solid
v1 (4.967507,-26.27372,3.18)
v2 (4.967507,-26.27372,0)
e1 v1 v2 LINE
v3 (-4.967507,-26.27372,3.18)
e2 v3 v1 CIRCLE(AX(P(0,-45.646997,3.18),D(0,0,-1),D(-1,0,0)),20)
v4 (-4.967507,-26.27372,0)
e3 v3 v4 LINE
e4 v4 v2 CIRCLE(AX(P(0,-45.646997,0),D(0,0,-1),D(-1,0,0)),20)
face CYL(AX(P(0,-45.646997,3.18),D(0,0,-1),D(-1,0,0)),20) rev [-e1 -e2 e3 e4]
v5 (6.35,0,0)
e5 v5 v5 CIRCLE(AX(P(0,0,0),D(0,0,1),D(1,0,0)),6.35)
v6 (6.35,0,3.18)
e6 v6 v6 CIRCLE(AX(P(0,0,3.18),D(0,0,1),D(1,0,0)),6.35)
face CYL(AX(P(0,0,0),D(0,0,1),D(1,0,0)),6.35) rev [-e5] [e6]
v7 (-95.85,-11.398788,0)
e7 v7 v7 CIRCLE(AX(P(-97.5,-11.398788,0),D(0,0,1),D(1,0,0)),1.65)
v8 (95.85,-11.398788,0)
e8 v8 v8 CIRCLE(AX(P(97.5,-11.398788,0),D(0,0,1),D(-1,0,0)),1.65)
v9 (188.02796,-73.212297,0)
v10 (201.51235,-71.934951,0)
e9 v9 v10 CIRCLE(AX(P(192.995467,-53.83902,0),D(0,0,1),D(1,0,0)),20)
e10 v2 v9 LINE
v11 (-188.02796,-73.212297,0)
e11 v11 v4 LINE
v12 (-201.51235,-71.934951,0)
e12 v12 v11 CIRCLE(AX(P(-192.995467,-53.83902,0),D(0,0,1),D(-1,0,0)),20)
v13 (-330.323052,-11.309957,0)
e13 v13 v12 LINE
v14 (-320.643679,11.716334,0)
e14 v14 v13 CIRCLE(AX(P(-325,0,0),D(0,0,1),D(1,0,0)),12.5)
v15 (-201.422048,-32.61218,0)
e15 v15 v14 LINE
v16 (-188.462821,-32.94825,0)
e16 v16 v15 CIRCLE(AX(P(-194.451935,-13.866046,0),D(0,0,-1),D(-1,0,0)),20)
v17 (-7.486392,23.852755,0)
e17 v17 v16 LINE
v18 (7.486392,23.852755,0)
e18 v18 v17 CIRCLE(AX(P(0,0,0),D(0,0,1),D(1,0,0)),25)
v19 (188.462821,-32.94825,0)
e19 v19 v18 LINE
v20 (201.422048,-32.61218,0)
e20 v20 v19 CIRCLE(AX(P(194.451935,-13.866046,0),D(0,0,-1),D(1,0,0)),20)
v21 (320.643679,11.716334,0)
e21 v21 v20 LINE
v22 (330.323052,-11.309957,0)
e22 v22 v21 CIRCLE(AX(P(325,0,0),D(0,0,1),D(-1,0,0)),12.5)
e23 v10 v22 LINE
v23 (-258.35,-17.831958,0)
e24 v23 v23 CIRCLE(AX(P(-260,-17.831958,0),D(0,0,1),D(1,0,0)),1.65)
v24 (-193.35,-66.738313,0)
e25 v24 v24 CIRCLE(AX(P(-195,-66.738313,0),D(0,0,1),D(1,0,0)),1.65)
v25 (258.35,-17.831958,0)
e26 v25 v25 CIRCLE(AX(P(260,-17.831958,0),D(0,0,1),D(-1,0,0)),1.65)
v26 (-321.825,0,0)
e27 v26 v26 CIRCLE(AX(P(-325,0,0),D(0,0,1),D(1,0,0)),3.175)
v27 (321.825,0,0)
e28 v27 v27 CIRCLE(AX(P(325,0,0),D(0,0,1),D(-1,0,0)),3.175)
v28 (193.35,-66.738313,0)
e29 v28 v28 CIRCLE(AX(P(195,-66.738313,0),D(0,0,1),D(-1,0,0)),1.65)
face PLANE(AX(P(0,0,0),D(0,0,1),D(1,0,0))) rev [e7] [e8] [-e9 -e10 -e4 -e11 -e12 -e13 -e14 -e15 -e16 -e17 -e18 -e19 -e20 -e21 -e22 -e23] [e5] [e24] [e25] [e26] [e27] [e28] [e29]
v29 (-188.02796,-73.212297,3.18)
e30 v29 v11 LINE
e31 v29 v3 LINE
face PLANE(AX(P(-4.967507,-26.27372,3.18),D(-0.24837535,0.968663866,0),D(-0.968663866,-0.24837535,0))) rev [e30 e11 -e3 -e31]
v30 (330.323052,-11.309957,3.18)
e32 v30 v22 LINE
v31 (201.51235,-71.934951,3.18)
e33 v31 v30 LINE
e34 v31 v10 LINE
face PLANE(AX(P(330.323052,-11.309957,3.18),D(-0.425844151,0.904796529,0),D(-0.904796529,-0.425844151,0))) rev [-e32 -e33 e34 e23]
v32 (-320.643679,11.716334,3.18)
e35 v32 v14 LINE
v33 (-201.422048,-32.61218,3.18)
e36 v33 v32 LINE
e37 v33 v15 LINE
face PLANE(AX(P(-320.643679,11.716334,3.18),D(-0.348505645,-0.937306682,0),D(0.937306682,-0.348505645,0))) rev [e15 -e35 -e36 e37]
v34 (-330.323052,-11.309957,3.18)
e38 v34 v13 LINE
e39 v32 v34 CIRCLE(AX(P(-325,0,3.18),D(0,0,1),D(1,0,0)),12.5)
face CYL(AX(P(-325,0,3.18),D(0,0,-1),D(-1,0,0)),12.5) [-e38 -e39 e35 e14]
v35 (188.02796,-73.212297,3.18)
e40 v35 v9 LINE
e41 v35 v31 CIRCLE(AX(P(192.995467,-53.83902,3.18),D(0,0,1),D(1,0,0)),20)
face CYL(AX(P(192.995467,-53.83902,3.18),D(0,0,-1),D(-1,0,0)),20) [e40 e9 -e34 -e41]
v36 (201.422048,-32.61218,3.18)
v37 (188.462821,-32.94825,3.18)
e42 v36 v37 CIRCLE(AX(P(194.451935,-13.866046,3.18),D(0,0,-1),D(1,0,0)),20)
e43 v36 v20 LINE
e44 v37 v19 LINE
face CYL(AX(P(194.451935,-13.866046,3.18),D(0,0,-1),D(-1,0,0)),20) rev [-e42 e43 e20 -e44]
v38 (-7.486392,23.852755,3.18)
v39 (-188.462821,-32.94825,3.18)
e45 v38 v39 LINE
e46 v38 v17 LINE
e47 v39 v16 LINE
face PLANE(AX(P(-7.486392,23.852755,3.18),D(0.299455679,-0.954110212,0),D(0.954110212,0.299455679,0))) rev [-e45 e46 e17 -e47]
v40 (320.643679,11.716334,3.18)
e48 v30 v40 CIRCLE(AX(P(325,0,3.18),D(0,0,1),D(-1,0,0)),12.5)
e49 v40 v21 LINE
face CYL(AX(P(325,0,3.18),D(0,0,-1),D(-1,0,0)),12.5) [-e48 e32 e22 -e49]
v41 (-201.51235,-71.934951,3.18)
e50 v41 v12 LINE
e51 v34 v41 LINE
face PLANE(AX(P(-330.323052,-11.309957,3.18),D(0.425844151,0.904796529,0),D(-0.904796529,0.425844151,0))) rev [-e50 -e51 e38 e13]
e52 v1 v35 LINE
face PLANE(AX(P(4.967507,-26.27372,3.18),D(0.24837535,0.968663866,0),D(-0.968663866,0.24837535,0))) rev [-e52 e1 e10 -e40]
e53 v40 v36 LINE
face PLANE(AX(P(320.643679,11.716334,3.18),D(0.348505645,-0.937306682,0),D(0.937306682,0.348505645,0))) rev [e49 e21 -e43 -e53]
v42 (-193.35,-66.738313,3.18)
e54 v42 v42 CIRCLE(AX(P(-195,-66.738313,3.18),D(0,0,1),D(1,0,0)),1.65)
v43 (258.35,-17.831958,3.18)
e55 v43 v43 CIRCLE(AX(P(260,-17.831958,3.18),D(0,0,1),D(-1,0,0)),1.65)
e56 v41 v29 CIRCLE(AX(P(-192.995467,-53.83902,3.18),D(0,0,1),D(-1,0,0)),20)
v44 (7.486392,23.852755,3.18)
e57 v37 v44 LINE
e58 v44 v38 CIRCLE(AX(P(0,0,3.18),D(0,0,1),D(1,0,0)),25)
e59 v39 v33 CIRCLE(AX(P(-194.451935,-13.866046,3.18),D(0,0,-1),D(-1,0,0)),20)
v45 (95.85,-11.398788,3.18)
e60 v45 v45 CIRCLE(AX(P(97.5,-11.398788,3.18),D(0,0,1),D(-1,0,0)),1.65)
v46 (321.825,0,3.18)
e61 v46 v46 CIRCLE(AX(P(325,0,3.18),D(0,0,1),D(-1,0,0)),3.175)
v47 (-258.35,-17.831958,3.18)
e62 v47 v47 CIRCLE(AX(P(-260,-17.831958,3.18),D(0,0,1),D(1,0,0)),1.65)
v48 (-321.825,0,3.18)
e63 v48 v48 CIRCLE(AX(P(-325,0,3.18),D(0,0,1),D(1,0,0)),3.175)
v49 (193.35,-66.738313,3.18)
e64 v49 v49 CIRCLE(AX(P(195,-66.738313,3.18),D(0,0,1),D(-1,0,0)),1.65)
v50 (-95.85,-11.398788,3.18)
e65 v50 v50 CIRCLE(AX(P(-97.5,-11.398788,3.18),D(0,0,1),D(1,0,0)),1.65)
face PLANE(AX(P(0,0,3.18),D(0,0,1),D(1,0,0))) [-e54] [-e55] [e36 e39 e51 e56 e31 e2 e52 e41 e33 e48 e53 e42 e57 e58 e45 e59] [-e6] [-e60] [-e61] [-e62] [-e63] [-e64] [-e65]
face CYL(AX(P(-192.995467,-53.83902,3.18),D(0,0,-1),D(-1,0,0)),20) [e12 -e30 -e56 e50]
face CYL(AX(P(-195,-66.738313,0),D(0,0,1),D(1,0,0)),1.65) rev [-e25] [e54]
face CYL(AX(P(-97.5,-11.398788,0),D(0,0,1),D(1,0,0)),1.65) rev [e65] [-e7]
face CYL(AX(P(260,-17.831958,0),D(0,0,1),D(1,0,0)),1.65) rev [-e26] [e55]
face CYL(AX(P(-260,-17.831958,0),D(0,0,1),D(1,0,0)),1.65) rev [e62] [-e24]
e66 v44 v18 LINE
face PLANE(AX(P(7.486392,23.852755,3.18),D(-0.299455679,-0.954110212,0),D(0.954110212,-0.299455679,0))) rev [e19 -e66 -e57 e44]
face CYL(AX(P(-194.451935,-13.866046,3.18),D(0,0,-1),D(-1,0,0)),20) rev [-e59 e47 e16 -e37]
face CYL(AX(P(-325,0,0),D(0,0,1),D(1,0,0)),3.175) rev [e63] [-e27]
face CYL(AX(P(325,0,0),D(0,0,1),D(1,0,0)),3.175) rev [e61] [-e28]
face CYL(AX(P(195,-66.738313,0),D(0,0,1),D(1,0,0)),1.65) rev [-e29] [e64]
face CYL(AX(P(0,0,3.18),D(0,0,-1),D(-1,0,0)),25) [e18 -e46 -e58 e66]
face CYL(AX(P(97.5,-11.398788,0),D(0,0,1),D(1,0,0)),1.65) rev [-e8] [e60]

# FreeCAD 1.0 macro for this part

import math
import FreeCAD as App
import Part
import Sketcher
Q = App.Units.Quantity

doc = App.newDocument("Part")
body = doc.addObject("PartDesign::Body", "Body")

# Sketch on XY plane
sketch1 = body.newObject("Sketcher::SketchObject", "Sketch")
sketch1.AttachmentSupport = (doc.getObject("XY_Plane"), [""])
sketch1.MapMode = "FlatFace"
sketch1.addGeometry([
    Part.LineSegment(App.Vector(-7, 24, 0), App.Vector(-188, -33, 0)),  # 0
    Part.ArcOfCircle(Part.Circle(App.Vector(-194, -14, 0), App.Vector(0, 0, 1), 20), math.radians(-110), math.radians(-73)),  # 1
    Part.LineSegment(App.Vector(-201, -33, 0), App.Vector(-321, 12, 0)),  # 2
    Part.ArcOfCircle(Part.Circle(App.Vector(-325, 0, 0), App.Vector(0, 0, 1), 12), math.radians(70), math.radians(245)),  # 3
    Part.LineSegment(App.Vector(-330, -11, 0), App.Vector(-202, -72, 0)),  # 4
    Part.ArcOfCircle(Part.Circle(App.Vector(-193, -54, 0), App.Vector(0, 0, 1), 20), math.radians(-115), math.radians(-76)),  # 5
    Part.LineSegment(App.Vector(-188, -73, 0), App.Vector(-5, -26, 0)),  # 6
    Part.ArcOfCircle(Part.Circle(App.Vector(0, -46, 0), App.Vector(0, 0, 1), 20), math.radians(76), math.radians(104)),  # 7
    Part.LineSegment(App.Vector(5, -26, 0), App.Vector(188, -73, 0)),  # 8
    Part.ArcOfCircle(Part.Circle(App.Vector(193, -54, 0), App.Vector(0, 0, 1), 20), math.radians(-104), math.radians(-65)),  # 9
    Part.LineSegment(App.Vector(202, -72, 0), App.Vector(330, -11, 0)),  # 10
    Part.ArcOfCircle(Part.Circle(App.Vector(325, 0, 0), App.Vector(0, 0, 1), 12), math.radians(-65), math.radians(110)),  # 11
    Part.LineSegment(App.Vector(321, 12, 0), App.Vector(201, -33, 0)),  # 12
    Part.ArcOfCircle(Part.Circle(App.Vector(194, -14, 0), App.Vector(0, 0, 1), 20), math.radians(-107), math.radians(-70)),  # 13
    Part.LineSegment(App.Vector(188, -33, 0), App.Vector(7, 24, 0)),  # 14
    Part.ArcOfCircle(Part.Circle(App.Vector(0, 0, 0), App.Vector(0, 0, 1), 25), math.radians(73), math.radians(107)),  # 15
], False)
sketch1.addConstraint([
    Sketcher.Constraint("Tangent", 0, 2, 1, 2),
    Sketcher.Constraint("Tangent", 1, 1, 2, 1),
    Sketcher.Constraint("Tangent", 2, 2, 3, 1),
    Sketcher.Constraint("Tangent", 3, 2, 4, 1),
    Sketcher.Constraint("Tangent", 4, 2, 5, 1),
    Sketcher.Constraint("Tangent", 5, 2, 6, 1),
    Sketcher.Constraint("Tangent", 6, 2, 7, 2),
    Sketcher.Constraint("Tangent", 7, 1, 8, 1),
    Sketcher.Constraint("Tangent", 8, 2, 9, 1),
    Sketcher.Constraint("Tangent", 9, 2, 10, 1),
    Sketcher.Constraint("Tangent", 10, 2, 11, 1),
    Sketcher.Constraint("Tangent", 11, 2, 12, 1),
    Sketcher.Constraint("Tangent", 12, 2, 13, 2),
    Sketcher.Constraint("Tangent", 13, 1, 14, 1),
    Sketcher.Constraint("Tangent", 14, 2, 15, 1),
    Sketcher.Constraint("Tangent", 15, 2, 0, 1),
    Sketcher.Constraint("Coincident", 15, 3, -1, 1),
    Sketcher.Constraint("Equal", 1, 5),
    Sketcher.Constraint("Equal", 5, 7),
    Sketcher.Constraint("Equal", 7, 9),
    Sketcher.Constraint("Equal", 3, 11),
    Sketcher.Constraint("Equal", 9, 13),
    Sketcher.Constraint("Symmetric", 3, 3, 11, 3, -1, 1),
    Sketcher.Constraint("Symmetric", 5, 3, 9, 3, -2),
    Sketcher.Constraint("Symmetric", 1, 3, 13, 3, -2),
    Sketcher.Constraint("PointOnObject", 3, 3, -1),
    Sketcher.Constraint("PointOnObject", 7, 3, -2),
    Sketcher.Constraint("Radius", 1, Q("20 mm")),
    Sketcher.Constraint("Radius", 15, Q("25 mm")),
    Sketcher.Constraint("Radius", 3, Q("12.5 mm")),
    Sketcher.Constraint("DistanceX", 3, 3, -1, 1, Q("325 mm")),
    Sketcher.Constraint("DistanceX", 1, 3, 9, 3, Q("387.447402 mm")),
    Sketcher.Constraint("DistanceX", 4, 2, 1, 1, Q("0.090302 mm")),
    Sketcher.Constraint("DistanceY", 4, 2, 0, 2, Q("38.9867 mm")),
    Sketcher.Constraint("DistanceY", 9, 3, 7, 1, Q("27.5653 mm")),
    Sketcher.Constraint("DistanceX", 6, 2, 14, 2, Q("12.453899 mm")),
])
pad1 = body.newObject("PartDesign::Pad", "Pad")
pad1.Profile = sketch1
pad1.Length = 3.18

# Sketch on XY plane
sketch2 = body.newObject("Sketcher::SketchObject", "Sketch001")
sketch2.AttachmentSupport = (doc.getObject("XY_Plane"), [""])
sketch2.MapMode = "FlatFace"
sketch2.AttachmentOffset = App.Placement(App.Vector(0, 0, 3.18), App.Rotation())
sketch2.addGeometry([
    Part.Circle(App.Vector(0, 0, 0), App.Vector(0, 0, 1), 6.3),  # 0
    Part.Circle(App.Vector(-325, 0, 0), App.Vector(0, 0, 1), 3.2),  # 1
    Part.Circle(App.Vector(-97.5, -11.4, 0), App.Vector(0, 0, 1), 1.6),  # 2
    Part.Circle(App.Vector(-195, -66.7, 0), App.Vector(0, 0, 1), 1.6),  # 3
    Part.Circle(App.Vector(-260, -17.8, 0), App.Vector(0, 0, 1), 1.6),  # 4
    Part.Circle(App.Vector(97.5, -11.4, 0), App.Vector(0, 0, 1), 1.6),  # 5
    Part.Circle(App.Vector(195, -66.7, 0), App.Vector(0, 0, 1), 1.6),  # 6
    Part.Circle(App.Vector(260, -17.8, 0), App.Vector(0, 0, 1), 1.6),  # 7
    Part.Circle(App.Vector(325, 0, 0), App.Vector(0, 0, 1), 3.2),  # 8
], False)
sketch2.addConstraint([
    Sketcher.Constraint("Coincident", 0, 3, -1, 1),
    Sketcher.Constraint("Equal", 2, 3),
    Sketcher.Constraint("Equal", 3, 4),
    Sketcher.Constraint("Equal", 4, 5),
    Sketcher.Constraint("Equal", 5, 6),
    Sketcher.Constraint("Equal", 6, 7),
    Sketcher.Constraint("Equal", 1, 8),
    Sketcher.Constraint("Symmetric", 1, 3, 8, 3, -1, 1),
    Sketcher.Constraint("Symmetric", 2, 3, 5, 3, -2),
    Sketcher.Constraint("Symmetric", 3, 3, 6, 3, -2),
    Sketcher.Constraint("Symmetric", 4, 3, 7, 3, -2),
    Sketcher.Constraint("PointOnObject", 1, 3, -1),
    Sketcher.Constraint("Diameter", 0, Q("12.7 mm")),
    Sketcher.Constraint("Diameter", 2, Q("3.3 mm")),
    Sketcher.Constraint("Diameter", 1, Q("6.35 mm")),
    Sketcher.Constraint("DistanceX", 1, 3, -1, 1, Q("325 mm")),
    Sketcher.Constraint("DistanceX", 3, 3, -1, 1, Q("195 mm")),
    Sketcher.Constraint("DistanceX", 4, 3, -1, 1, Q("260 mm")),
    Sketcher.Constraint("DistanceX", 2, 3, 5, 3, Q("195 mm")),
    Sketcher.Constraint("DistanceY", 2, 3, -1, 1, Q("11.398788 mm")),
    Sketcher.Constraint("DistanceY", 4, 3, -1, 1, Q("17.831958 mm")),
    Sketcher.Constraint("DistanceY", 3, 3, -1, 1, Q("66.738313 mm")),
])
pocket1 = body.newObject("PartDesign::Pocket", "Pocket")
pocket1.Profile = sketch2
pocket1.Type = "ThroughAll"

doc.recompute()
